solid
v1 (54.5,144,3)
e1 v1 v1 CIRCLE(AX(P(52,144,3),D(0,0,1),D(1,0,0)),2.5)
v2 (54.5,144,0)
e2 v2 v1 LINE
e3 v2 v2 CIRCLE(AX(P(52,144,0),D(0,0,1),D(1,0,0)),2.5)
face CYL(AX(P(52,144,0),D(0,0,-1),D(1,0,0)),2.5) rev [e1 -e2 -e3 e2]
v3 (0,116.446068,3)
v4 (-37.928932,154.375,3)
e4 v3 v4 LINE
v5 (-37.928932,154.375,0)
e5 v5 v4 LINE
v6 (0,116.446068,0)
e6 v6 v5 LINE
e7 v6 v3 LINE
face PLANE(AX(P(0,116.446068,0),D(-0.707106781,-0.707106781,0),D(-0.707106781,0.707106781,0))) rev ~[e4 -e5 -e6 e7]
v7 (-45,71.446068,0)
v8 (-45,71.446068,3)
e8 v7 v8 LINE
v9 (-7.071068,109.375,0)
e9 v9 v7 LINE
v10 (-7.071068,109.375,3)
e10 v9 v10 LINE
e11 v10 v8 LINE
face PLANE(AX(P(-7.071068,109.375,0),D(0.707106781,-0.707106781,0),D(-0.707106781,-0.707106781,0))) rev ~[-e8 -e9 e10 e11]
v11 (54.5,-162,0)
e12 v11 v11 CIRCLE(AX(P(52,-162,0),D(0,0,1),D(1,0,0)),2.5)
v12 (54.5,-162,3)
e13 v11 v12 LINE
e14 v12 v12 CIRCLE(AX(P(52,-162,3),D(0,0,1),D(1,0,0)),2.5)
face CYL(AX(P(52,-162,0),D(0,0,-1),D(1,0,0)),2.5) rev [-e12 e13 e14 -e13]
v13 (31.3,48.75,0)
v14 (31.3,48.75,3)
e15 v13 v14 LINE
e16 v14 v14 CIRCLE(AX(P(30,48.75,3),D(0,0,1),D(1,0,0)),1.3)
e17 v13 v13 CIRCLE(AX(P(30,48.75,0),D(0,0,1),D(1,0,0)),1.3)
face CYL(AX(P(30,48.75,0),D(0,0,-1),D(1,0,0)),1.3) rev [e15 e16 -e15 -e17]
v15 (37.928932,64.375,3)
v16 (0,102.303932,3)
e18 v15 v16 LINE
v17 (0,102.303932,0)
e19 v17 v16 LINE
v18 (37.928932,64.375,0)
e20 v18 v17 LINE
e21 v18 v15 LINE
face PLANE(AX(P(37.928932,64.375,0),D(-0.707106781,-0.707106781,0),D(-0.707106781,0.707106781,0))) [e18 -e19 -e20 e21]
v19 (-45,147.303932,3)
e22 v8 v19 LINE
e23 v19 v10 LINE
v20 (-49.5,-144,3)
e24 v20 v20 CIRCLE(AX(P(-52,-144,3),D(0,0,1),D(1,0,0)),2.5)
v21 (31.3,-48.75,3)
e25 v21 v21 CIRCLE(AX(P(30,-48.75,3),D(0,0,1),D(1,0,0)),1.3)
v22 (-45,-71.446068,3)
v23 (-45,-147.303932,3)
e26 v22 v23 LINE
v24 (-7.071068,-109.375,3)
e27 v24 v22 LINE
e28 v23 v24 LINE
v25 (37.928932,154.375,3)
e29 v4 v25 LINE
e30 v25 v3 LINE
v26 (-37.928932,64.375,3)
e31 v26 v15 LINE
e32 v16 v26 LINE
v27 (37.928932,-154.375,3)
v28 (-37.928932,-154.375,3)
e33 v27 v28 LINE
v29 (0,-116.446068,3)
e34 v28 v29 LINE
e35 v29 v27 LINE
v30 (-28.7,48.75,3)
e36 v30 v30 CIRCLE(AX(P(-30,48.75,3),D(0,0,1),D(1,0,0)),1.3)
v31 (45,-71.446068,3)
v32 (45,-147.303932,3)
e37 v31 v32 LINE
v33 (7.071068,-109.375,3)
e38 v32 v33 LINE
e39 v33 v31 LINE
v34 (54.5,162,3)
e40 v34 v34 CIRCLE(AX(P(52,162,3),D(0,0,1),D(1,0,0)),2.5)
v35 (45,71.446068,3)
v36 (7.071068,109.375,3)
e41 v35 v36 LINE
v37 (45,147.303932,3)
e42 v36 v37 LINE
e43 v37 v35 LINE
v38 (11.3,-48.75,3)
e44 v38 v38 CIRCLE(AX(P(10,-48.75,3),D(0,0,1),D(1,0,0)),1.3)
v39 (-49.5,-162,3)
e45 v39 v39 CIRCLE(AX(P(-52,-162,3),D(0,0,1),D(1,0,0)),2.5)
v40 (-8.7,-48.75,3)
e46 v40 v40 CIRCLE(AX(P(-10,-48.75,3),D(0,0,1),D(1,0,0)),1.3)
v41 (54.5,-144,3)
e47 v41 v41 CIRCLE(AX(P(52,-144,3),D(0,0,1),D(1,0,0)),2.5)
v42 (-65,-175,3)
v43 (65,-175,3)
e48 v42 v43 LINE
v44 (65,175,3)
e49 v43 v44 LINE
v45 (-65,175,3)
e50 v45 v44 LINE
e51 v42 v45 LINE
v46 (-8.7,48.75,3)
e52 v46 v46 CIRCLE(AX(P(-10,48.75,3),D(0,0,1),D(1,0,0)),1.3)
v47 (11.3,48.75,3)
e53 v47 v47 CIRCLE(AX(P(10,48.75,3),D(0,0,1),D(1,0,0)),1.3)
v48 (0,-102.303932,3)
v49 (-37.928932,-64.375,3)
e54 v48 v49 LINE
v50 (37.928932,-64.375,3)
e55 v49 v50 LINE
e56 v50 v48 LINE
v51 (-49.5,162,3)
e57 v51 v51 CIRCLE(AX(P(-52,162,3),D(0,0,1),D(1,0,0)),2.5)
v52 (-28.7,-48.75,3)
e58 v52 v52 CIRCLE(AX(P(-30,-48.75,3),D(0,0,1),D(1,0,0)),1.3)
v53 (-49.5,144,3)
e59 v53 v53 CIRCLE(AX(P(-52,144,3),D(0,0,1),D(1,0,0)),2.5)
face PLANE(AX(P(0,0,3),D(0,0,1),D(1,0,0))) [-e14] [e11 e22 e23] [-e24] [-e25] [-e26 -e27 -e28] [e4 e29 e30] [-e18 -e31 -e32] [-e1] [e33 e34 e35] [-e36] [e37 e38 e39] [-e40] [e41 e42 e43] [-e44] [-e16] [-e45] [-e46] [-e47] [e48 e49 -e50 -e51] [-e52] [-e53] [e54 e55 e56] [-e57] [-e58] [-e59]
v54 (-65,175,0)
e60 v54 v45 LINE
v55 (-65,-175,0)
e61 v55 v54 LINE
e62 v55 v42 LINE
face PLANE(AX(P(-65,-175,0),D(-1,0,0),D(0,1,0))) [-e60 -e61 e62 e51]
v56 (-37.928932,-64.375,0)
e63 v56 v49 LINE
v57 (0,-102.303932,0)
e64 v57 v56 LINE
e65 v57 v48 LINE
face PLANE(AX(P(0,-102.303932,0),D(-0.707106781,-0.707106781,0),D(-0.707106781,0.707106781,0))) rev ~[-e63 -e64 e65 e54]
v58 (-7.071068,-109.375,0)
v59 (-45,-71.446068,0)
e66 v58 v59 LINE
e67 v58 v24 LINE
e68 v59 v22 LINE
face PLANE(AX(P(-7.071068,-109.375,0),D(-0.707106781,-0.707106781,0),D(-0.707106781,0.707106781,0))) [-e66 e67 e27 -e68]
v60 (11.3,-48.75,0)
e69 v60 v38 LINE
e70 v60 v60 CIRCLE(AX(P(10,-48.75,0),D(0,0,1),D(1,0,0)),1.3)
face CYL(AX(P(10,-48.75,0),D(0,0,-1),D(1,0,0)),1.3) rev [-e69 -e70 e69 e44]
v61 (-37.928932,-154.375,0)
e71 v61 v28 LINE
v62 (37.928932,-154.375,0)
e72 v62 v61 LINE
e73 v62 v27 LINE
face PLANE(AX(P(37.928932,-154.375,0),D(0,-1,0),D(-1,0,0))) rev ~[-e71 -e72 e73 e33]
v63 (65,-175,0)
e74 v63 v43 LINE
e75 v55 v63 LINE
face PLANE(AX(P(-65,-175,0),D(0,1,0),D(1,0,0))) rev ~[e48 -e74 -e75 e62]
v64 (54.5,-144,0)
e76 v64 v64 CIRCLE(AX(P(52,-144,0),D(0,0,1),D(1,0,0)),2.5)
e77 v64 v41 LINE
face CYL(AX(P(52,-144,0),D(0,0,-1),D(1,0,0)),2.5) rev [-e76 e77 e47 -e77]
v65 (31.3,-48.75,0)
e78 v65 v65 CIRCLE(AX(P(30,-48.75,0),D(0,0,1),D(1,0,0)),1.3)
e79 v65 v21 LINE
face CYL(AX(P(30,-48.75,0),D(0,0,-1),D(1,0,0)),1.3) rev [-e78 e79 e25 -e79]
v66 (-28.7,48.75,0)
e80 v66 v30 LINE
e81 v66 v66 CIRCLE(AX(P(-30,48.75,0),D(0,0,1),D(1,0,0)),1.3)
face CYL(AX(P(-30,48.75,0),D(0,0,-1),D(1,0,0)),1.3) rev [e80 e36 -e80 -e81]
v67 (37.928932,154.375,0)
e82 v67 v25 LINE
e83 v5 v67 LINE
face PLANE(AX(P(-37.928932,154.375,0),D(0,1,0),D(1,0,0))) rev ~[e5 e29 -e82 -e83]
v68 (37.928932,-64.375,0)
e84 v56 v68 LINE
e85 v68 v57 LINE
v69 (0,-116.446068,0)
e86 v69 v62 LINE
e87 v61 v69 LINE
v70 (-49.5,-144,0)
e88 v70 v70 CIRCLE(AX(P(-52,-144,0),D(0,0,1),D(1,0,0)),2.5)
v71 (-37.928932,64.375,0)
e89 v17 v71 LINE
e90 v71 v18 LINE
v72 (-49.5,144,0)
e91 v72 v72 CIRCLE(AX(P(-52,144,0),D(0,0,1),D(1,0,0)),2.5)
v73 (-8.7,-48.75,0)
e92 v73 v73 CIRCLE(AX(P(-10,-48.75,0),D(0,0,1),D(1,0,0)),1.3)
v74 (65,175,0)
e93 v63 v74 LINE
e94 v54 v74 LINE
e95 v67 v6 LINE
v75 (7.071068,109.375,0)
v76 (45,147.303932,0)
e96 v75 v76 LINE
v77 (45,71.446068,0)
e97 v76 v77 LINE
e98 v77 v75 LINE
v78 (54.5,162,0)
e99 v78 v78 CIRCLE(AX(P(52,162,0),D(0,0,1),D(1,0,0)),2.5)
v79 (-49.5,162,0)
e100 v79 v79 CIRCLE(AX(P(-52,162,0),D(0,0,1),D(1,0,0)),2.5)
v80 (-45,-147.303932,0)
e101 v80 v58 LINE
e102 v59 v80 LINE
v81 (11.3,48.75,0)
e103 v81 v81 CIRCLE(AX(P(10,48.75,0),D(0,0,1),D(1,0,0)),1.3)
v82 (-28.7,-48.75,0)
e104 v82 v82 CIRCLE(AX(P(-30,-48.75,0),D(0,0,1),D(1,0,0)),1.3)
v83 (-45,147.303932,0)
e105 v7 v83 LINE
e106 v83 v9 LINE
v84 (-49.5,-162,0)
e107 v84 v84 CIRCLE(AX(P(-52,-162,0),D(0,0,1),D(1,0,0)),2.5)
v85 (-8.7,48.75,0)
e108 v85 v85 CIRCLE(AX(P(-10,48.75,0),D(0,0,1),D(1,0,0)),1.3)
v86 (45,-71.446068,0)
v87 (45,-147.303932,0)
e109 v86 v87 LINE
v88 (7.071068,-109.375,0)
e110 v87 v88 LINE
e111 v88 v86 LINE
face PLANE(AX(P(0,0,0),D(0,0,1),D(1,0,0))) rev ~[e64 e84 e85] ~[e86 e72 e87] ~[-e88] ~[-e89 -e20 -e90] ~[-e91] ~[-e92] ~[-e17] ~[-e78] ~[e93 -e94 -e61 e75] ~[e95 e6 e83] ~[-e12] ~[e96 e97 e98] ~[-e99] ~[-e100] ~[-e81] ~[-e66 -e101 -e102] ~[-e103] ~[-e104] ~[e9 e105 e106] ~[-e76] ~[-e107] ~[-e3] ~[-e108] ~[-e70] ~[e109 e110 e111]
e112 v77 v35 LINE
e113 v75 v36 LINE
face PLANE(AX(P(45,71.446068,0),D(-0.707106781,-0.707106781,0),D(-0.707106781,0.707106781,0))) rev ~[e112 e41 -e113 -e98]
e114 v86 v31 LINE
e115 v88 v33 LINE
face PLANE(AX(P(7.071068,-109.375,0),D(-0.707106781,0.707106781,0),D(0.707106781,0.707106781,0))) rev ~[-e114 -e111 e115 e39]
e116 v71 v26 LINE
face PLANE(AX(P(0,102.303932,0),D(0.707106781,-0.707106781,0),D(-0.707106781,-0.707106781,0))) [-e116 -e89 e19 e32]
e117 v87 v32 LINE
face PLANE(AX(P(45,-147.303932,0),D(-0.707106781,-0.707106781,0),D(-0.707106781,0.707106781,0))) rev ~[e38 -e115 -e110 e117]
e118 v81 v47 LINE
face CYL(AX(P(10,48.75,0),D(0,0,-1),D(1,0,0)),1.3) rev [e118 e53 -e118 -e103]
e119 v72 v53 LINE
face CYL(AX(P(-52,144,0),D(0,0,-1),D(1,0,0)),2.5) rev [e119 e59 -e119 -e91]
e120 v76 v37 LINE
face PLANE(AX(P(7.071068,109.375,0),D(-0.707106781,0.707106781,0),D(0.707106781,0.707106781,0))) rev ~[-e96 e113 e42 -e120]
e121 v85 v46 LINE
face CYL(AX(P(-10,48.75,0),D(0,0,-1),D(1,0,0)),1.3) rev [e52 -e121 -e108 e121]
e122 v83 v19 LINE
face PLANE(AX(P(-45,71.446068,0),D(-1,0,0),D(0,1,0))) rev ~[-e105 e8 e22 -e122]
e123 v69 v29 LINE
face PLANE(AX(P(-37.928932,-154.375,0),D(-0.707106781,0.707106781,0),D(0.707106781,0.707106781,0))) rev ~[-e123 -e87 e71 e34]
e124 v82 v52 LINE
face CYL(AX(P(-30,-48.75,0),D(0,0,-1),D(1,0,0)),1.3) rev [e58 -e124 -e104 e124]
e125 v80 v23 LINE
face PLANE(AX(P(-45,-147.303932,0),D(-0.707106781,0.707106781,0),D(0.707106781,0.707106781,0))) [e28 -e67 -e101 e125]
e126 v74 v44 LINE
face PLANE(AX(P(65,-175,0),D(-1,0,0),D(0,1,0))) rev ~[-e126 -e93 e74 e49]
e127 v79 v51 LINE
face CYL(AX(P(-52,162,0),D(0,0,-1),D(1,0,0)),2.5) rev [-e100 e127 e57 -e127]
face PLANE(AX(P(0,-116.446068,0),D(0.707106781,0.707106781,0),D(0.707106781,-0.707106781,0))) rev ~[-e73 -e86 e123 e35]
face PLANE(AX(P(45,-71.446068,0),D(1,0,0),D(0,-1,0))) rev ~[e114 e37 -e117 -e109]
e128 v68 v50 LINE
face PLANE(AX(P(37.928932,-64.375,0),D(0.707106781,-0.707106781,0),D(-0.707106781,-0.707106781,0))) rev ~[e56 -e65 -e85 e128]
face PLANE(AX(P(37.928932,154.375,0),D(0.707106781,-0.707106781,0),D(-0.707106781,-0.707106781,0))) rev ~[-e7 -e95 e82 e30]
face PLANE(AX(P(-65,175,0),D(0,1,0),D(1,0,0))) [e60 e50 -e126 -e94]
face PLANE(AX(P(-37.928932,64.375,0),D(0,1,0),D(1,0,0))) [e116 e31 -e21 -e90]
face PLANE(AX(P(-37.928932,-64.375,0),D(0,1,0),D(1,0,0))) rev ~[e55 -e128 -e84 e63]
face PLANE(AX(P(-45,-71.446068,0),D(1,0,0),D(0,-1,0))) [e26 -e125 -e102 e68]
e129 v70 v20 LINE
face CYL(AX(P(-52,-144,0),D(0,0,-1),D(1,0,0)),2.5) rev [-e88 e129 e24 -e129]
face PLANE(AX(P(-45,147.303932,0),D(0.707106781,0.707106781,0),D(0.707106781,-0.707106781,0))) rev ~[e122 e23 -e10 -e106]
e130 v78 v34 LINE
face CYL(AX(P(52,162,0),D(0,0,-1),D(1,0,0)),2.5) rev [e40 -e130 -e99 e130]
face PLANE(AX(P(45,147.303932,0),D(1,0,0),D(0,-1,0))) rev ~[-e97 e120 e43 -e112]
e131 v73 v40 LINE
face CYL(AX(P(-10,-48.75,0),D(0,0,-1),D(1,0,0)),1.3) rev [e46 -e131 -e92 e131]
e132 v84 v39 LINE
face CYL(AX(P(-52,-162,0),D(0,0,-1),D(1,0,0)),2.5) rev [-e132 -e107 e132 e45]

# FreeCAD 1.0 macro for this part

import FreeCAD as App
import Part
import Sketcher

doc = App.newDocument("Part")
body = doc.addObject("PartDesign::Body", "Body")

sketch1 = body.newObject("Sketcher::SketchObject", "Sketch")
sketch1.AttachmentSupport = (doc.getObject("XY_Plane"), [""])
sketch1.MapMode = "FlatFace"
sketch1.addGeometry(Part.LineSegment(App.Vector(-65, 175, 0), App.Vector(-65, -175, 0)), False)
sketch1.addGeometry(Part.LineSegment(App.Vector(-65, -175, 0), App.Vector(65, -175, 0)), False)
sketch1.addGeometry(Part.LineSegment(App.Vector(65, -175, 0), App.Vector(65, 175, 0)), False)
sketch1.addGeometry(Part.LineSegment(App.Vector(65, 175, 0), App.Vector(-65, 175, 0)), False)
sketch1.addGeometry(Part.Circle(App.Vector(-52, -162, 0), App.Vector(0, 0, 1), 2.5), False)
sketch1.addGeometry(Part.Circle(App.Vector(-52, -144, 0), App.Vector(0, 0, 1), 2.5), False)
sketch1.addGeometry(Part.LineSegment(App.Vector(-45, -71.4, 0), App.Vector(-7.1, -109.4, 0)), False)
sketch1.addGeometry(Part.LineSegment(App.Vector(-7.1, -109.4, 0), App.Vector(-45, -147.3, 0)), False)
sketch1.addGeometry(Part.LineSegment(App.Vector(-45, -147.3, 0), App.Vector(-45, -71.4, 0)), False)
sketch1.addGeometry(Part.Circle(App.Vector(-30, -48.8, 0), App.Vector(0, 0, 1), 1.3), False)
sketch1.addGeometry(Part.Circle(App.Vector(-10, -48.8, 0), App.Vector(0, 0, 1), 1.3), False)
sketch1.addGeometry(Part.LineSegment(App.Vector(-37.9, -154.4, 0), App.Vector(0, -116.4, 0)), False)
sketch1.addGeometry(Part.LineSegment(App.Vector(0, -116.4, 0), App.Vector(37.9, -154.4, 0)), False)
sketch1.addGeometry(Part.LineSegment(App.Vector(37.9, -154.4, 0), App.Vector(-37.9, -154.4, 0)), False)
sketch1.addGeometry(Part.LineSegment(App.Vector(0, -102.3, 0), App.Vector(-37.9, -64.4, 0)), False)
sketch1.addGeometry(Part.LineSegment(App.Vector(-37.9, -64.4, 0), App.Vector(37.9, -64.4, 0)), False)
sketch1.addGeometry(Part.LineSegment(App.Vector(37.9, -64.4, 0), App.Vector(0, -102.3, 0)), False)
sketch1.addGeometry(Part.LineSegment(App.Vector(45, -147.3, 0), App.Vector(7.1, -109.4, 0)), False)
sketch1.addGeometry(Part.LineSegment(App.Vector(7.1, -109.4, 0), App.Vector(45, -71.4, 0)), False)
sketch1.addGeometry(Part.LineSegment(App.Vector(45, -71.4, 0), App.Vector(45, -147.3, 0)), False)
sketch1.addGeometry(Part.Circle(App.Vector(52, -162, 0), App.Vector(0, 0, 1), 2.5), False)
sketch1.addGeometry(Part.Circle(App.Vector(52, -144, 0), App.Vector(0, 0, 1), 2.5), False)
sketch1.addGeometry(Part.Circle(App.Vector(10, -48.8, 0), App.Vector(0, 0, 1), 1.3), False)
sketch1.addGeometry(Part.Circle(App.Vector(30, -48.8, 0), App.Vector(0, 0, 1), 1.3), False)
sketch1.addGeometry(Part.Circle(App.Vector(-30, 48.8, 0), App.Vector(0, 0, 1), 1.3), False)
sketch1.addGeometry(Part.Circle(App.Vector(-10, 48.8, 0), App.Vector(0, 0, 1), 1.3), False)
sketch1.addGeometry(Part.Circle(App.Vector(-52, 144, 0), App.Vector(0, 0, 1), 2.5), False)
sketch1.addGeometry(Part.Circle(App.Vector(-52, 162, 0), App.Vector(0, 0, 1), 2.5), False)
sketch1.addGeometry(Part.LineSegment(App.Vector(-45, 71.4, 0), App.Vector(-45, 147.3, 0)), False)
sketch1.addGeometry(Part.LineSegment(App.Vector(-45, 147.3, 0), App.Vector(-7.1, 109.4, 0)), False)
sketch1.addGeometry(Part.LineSegment(App.Vector(-7.1, 109.4, 0), App.Vector(-45, 71.4, 0)), False)
sketch1.addGeometry(Part.Circle(App.Vector(10, 48.8, 0), App.Vector(0, 0, 1), 1.3), False)
sketch1.addGeometry(Part.Circle(App.Vector(30, 48.8, 0), App.Vector(0, 0, 1), 1.3), False)
sketch1.addGeometry(Part.LineSegment(App.Vector(-37.9, 64.4, 0), App.Vector(0, 102.3, 0)), False)
sketch1.addGeometry(Part.LineSegment(App.Vector(0, 102.3, 0), App.Vector(37.9, 64.4, 0)), False)
sketch1.addGeometry(Part.LineSegment(App.Vector(37.9, 64.4, 0), App.Vector(-37.9, 64.4, 0)), False)
sketch1.addGeometry(Part.LineSegment(App.Vector(45, 71.4, 0), App.Vector(7.1, 109.4, 0)), False)
sketch1.addGeometry(Part.LineSegment(App.Vector(7.1, 109.4, 0), App.Vector(45, 147.3, 0)), False)
sketch1.addGeometry(Part.LineSegment(App.Vector(45, 147.3, 0), App.Vector(45, 71.4, 0)), False)
sketch1.addGeometry(Part.LineSegment(App.Vector(0, 116.4, 0), App.Vector(-37.9, 154.4, 0)), False)
sketch1.addGeometry(Part.LineSegment(App.Vector(-37.9, 154.4, 0), App.Vector(37.9, 154.4, 0)), False)
sketch1.addGeometry(Part.LineSegment(App.Vector(37.9, 154.4, 0), App.Vector(0, 116.4, 0)), False)
sketch1.addGeometry(Part.Circle(App.Vector(52, 144, 0), App.Vector(0, 0, 1), 2.5), False)
sketch1.addGeometry(Part.Circle(App.Vector(52, 162, 0), App.Vector(0, 0, 1), 2.5), False)
sketch1.addConstraint(Sketcher.Constraint("Coincident", 0, 2, 1, 1))
sketch1.addConstraint(Sketcher.Constraint("Coincident", 1, 2, 2, 1))
sketch1.addConstraint(Sketcher.Constraint("Coincident", 2, 2, 3, 1))
sketch1.addConstraint(Sketcher.Constraint("Coincident", 3, 2, 0, 1))
sketch1.addConstraint(Sketcher.Constraint("Coincident", 6, 2, 7, 1))
sketch1.addConstraint(Sketcher.Constraint("Coincident", 7, 2, 8, 1))
sketch1.addConstraint(Sketcher.Constraint("Coincident", 8, 2, 6, 1))
sketch1.addConstraint(Sketcher.Constraint("Coincident", 11, 2, 12, 1))
sketch1.addConstraint(Sketcher.Constraint("Coincident", 12, 2, 13, 1))
sketch1.addConstraint(Sketcher.Constraint("Coincident", 13, 2, 11, 1))
sketch1.addConstraint(Sketcher.Constraint("Coincident", 14, 2, 15, 1))
sketch1.addConstraint(Sketcher.Constraint("Coincident", 15, 2, 16, 1))
sketch1.addConstraint(Sketcher.Constraint("Coincident", 16, 2, 14, 1))
sketch1.addConstraint(Sketcher.Constraint("Coincident", 17, 2, 18, 1))
sketch1.addConstraint(Sketcher.Constraint("Coincident", 18, 2, 19, 1))
sketch1.addConstraint(Sketcher.Constraint("Coincident", 19, 2, 17, 1))
sketch1.addConstraint(Sketcher.Constraint("Coincident", 28, 2, 29, 1))
sketch1.addConstraint(Sketcher.Constraint("Coincident", 29, 2, 30, 1))
sketch1.addConstraint(Sketcher.Constraint("Coincident", 30, 2, 28, 1))
sketch1.addConstraint(Sketcher.Constraint("Coincident", 33, 2, 34, 1))
sketch1.addConstraint(Sketcher.Constraint("Coincident", 34, 2, 35, 1))
sketch1.addConstraint(Sketcher.Constraint("Coincident", 35, 2, 33, 1))
sketch1.addConstraint(Sketcher.Constraint("Coincident", 36, 2, 37, 1))
sketch1.addConstraint(Sketcher.Constraint("Coincident", 37, 2, 38, 1))
sketch1.addConstraint(Sketcher.Constraint("Coincident", 38, 2, 36, 1))
sketch1.addConstraint(Sketcher.Constraint("Coincident", 39, 2, 40, 1))
sketch1.addConstraint(Sketcher.Constraint("Coincident", 40, 2, 41, 1))
sketch1.addConstraint(Sketcher.Constraint("Coincident", 41, 2, 39, 1))
sketch1.addConstraint(Sketcher.Constraint("Vertical", 0))
sketch1.addConstraint(Sketcher.Constraint("Horizontal", 1))
sketch1.addConstraint(Sketcher.Constraint("Vertical", 2))
sketch1.addConstraint(Sketcher.Constraint("Horizontal", 3))
sketch1.addConstraint(Sketcher.Constraint("Vertical", 8))
sketch1.addConstraint(Sketcher.Constraint("Horizontal", 13))
sketch1.addConstraint(Sketcher.Constraint("Horizontal", 15))
sketch1.addConstraint(Sketcher.Constraint("Vertical", 19))
sketch1.addConstraint(Sketcher.Constraint("Vertical", 28))
sketch1.addConstraint(Sketcher.Constraint("Horizontal", 35))
sketch1.addConstraint(Sketcher.Constraint("Vertical", 38))
sketch1.addConstraint(Sketcher.Constraint("Horizontal", 40))
sketch1.addConstraint(Sketcher.Constraint("Equal", 4, 5))
sketch1.addConstraint(Sketcher.Constraint("Equal", 9, 10))
sketch1.addConstraint(Sketcher.Constraint("Equal", 5, 20))
sketch1.addConstraint(Sketcher.Constraint("Equal", 20, 21))
sketch1.addConstraint(Sketcher.Constraint("Equal", 10, 22))
sketch1.addConstraint(Sketcher.Constraint("Equal", 22, 23))
sketch1.addConstraint(Sketcher.Constraint("Equal", 23, 24))
sketch1.addConstraint(Sketcher.Constraint("Equal", 24, 25))
sketch1.addConstraint(Sketcher.Constraint("Equal", 21, 26))
sketch1.addConstraint(Sketcher.Constraint("Equal", 26, 27))
sketch1.addConstraint(Sketcher.Constraint("Equal", 25, 31))
sketch1.addConstraint(Sketcher.Constraint("Equal", 31, 32))
sketch1.addConstraint(Sketcher.Constraint("Equal", 27, 42))
sketch1.addConstraint(Sketcher.Constraint("Equal", 42, 43))
sketch1.addConstraint(Sketcher.Constraint("Symmetric", 23, 3, 24, 3, -1, 1))
sketch1.addConstraint(Sketcher.Constraint("Symmetric", 22, 3, 25, 3, -1, 1))
sketch1.addConstraint(Sketcher.Constraint("Symmetric", 21, 3, 26, 3, -1, 1))
sketch1.addConstraint(Sketcher.Constraint("Symmetric", 20, 3, 27, 3, -1, 1))
sketch1.addConstraint(Sketcher.Constraint("Symmetric", 10, 3, 31, 3, -1, 1))
sketch1.addConstraint(Sketcher.Constraint("Symmetric", 9, 3, 32, 3, -1, 1))
sketch1.addConstraint(Sketcher.Constraint("Symmetric", 5, 3, 42, 3, -1, 1))
sketch1.addConstraint(Sketcher.Constraint("Symmetric", 4, 3, 43, 3, -1, 1))
sketch1.addConstraint(Sketcher.Constraint("Symmetric", 0, 2, 2, 2, -1, 1))
sketch1.addConstraint(Sketcher.Constraint("Symmetric", 19, 2, 28, 2, -1, 1))
sketch1.addConstraint(Sketcher.Constraint("Symmetric", 17, 2, 29, 2, -1, 1))
sketch1.addConstraint(Sketcher.Constraint("Symmetric", 16, 2, 33, 2, -1, 1))
sketch1.addConstraint(Sketcher.Constraint("Symmetric", 14, 2, 34, 2, -1, 1))
sketch1.addConstraint(Sketcher.Constraint("Symmetric", 6, 2, 36, 2, -1, 1))
sketch1.addConstraint(Sketcher.Constraint("Symmetric", 7, 2, 37, 2, -1, 1))
sketch1.addConstraint(Sketcher.Constraint("Symmetric", 12, 2, 39, 2, -1, 1))
sketch1.addConstraint(Sketcher.Constraint("Symmetric", 11, 2, 41, 2, -1, 1))
sketch1.addConstraint(Sketcher.Constraint("Symmetric", 4, 3, 20, 3, -2))
sketch1.addConstraint(Sketcher.Constraint("Symmetric", 5, 3, 21, 3, -2))
sketch1.addConstraint(Sketcher.Constraint("Symmetric", 10, 3, 22, 3, -2))
sketch1.addConstraint(Sketcher.Constraint("Symmetric", 9, 3, 23, 3, -2))
sketch1.addConstraint(Sketcher.Constraint("Symmetric", 6, 2, 17, 2, -2))
sketch1.addConstraint(Sketcher.Constraint("Symmetric", 8, 2, 18, 2, -2))
sketch1.addConstraint(Sketcher.Constraint("PointOnObject", 11, 2, -2))
sketch1.addConstraint(Sketcher.Constraint("PointOnObject", 16, 2, -2))
sketch1.addConstraint(Sketcher.Constraint("Perpendicular", 6, 7))
sketch1.addConstraint(Sketcher.Constraint("Parallel", 7, 11))
sketch1.addConstraint(Sketcher.Constraint("Perpendicular", 11, 12))
sketch1.addConstraint(Sketcher.Constraint("Parallel", 12, 14))
sketch1.addConstraint(Sketcher.Constraint("Perpendicular", 14, 16))
sketch1.addConstraint(Sketcher.Constraint("Perpendicular", 16, 17))
sketch1.addConstraint(Sketcher.Constraint("Perpendicular", 17, 18))
sketch1.addConstraint(Sketcher.Constraint("Perpendicular", 29, 30))
sketch1.addConstraint(Sketcher.Constraint("Parallel", 30, 33))
sketch1.addConstraint(Sketcher.Constraint("Parallel", 34, 36))
sketch1.addConstraint(Sketcher.Constraint("Perpendicular", 39, 41))
sketch1.addConstraint(Sketcher.Constraint("Horizontal", 9, 3, 10, 3))
sketch1.addConstraint(Sketcher.Constraint("Vertical", 4, 3, 5, 3))
sketch1.addConstraint(Sketcher.Constraint("Vertical", 13, 2, 14, 2))
sketch1.addConstraint(Sketcher.Constraint("Equal", 40, 8))
sketch1.addConstraint(Sketcher.Constraint("Diameter", 4, 5.0))
sketch1.addConstraint(Sketcher.Constraint("Diameter", 9, 2.6))
sketch1.addConstraint(Sketcher.Constraint("DistanceX", 1, 1, 1, 2, 130.0))
sketch1.addConstraint(Sketcher.Constraint("DistanceY", 0, 2, 0, 1, 350.0))
sketch1.addConstraint(Sketcher.Constraint("DistanceX", 4, 3, -1, 1, 52.0))
sketch1.addConstraint(Sketcher.Constraint("DistanceY", 4, 3, -1, 1, 162.0))
sketch1.addConstraint(Sketcher.Constraint("DistanceY", 5, 3, -1, 1, 144.0))
sketch1.addConstraint(Sketcher.Constraint("DistanceX", 9, 3, -1, 1, 30.0))
sketch1.addConstraint(Sketcher.Constraint("DistanceX", 10, 3, -1, 1, 10.0))
sketch1.addConstraint(Sketcher.Constraint("DistanceX", 7, 2, -1, 1, 45.0))
sketch1.addConstraint(Sketcher.Constraint("DistanceY", 11, 2, 8, 2, 45.0))
sketch1.addConstraint(Sketcher.Constraint("DistanceY", 6, 2, 14, 2, 45.0))
sketch1.addConstraint(Sketcher.Constraint("DistanceY", 9, 3, 24, 3, 97.5))
sketch1.addConstraint(Sketcher.Constraint("DistanceY", 6, 2, -1, 1, 109.375))
sketch1.addConstraint(Sketcher.Constraint("Distance", 6, 53.63961))
pad1 = body.newObject("PartDesign::Pad", "Pad")
pad1.Profile = sketch1
pad1.Length = 3

doc.recompute()
